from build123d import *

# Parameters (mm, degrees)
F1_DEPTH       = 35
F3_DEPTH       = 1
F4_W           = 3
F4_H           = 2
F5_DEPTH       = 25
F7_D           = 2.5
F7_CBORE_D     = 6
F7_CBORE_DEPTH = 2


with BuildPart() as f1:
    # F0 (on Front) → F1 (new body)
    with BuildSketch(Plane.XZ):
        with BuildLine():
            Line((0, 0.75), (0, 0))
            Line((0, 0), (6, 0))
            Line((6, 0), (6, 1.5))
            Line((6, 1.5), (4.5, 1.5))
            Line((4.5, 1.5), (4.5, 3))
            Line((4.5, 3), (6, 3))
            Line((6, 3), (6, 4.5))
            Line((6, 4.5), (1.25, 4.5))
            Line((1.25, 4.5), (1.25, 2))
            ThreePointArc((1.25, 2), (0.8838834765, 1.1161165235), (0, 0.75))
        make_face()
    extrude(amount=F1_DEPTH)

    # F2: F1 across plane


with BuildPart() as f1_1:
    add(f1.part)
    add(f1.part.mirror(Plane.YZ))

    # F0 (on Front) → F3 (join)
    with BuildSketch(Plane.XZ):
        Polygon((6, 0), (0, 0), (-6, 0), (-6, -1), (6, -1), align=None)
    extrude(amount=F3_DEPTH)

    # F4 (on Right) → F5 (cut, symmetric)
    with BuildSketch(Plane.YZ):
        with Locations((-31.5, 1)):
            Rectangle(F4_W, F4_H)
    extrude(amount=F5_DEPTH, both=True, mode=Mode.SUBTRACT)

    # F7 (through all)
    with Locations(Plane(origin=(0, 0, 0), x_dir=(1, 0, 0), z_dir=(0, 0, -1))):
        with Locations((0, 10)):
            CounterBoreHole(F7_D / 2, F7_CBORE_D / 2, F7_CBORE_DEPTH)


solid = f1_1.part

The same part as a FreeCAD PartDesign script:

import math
import FreeCAD as App
import Part
import Sketcher
from FreeCAD import Vector

doc = App.newDocument("Part")
params = doc.addObject("Spreadsheet::Sheet", "Params")
for row, (alias, value) in enumerate([
    ("sketch1_width", "6 mm"),
    ("sketch1_radius", "1.25 mm"),
    ("sketch1_width2", "1.5 mm"),
    ("sketch1_height", "2.5 mm"),
    ("pad1_length", "35 mm"),
    ("sketch2_width", "12 mm"),
    ("sketch2_height", "1 mm"),
    ("pad2_length", "1 mm"),
    ("sketch3_width", "3 mm"),
    ("sketch3_height", "2 mm"),
    ("pocket1_length", "50 mm"),
    ("sketch4_diameter", "2.5 mm"),
    ("hole_diameter", "2.5 mm"),
    ("hole_cbore_diameter", "6 mm"),
    ("hole_cbore_depth", "2 mm"),
], start=1):
    params.set(f"A{row}", alias)
    params.set(f"B{row}", "=" + value)
    params.setAlias(f"B{row}", alias)

body = doc.addObject("PartDesign::Body", "Body")

sketch1 = body.newObject("Sketcher::SketchObject", "Sketch")
sketch1.AttachmentSupport = (doc.getObject("XZ_Plane"), [""])
sketch1.MapMode = "FlatFace"
sketch1.addGeometry(Part.LineSegment(Vector(0, 0.75, 0), Vector(0, 0, 0)), False)
sketch1.addGeometry(Part.LineSegment(Vector(0, 0, 0), Vector(6, 0, 0)), False)
sketch1.addGeometry(Part.LineSegment(Vector(6, 0, 0), Vector(6, 1.5, 0)), False)
sketch1.addGeometry(Part.LineSegment(Vector(6, 1.5, 0), Vector(4.5, 1.5, 0)), False)
sketch1.addGeometry(Part.LineSegment(Vector(4.5, 1.5, 0), Vector(4.5, 3, 0)), False)
sketch1.addGeometry(Part.LineSegment(Vector(4.5, 3, 0), Vector(6, 3, 0)), False)
sketch1.addGeometry(Part.LineSegment(Vector(6, 3, 0), Vector(6, 4.5, 0)), False)
sketch1.addGeometry(Part.LineSegment(Vector(6, 4.5, 0), Vector(1.25, 4.5, 0)), False)
sketch1.addGeometry(Part.LineSegment(Vector(1.25, 4.5, 0), Vector(1.25, 2, 0)), False)
sketch1.addGeometry(Part.ArcOfCircle(Part.Circle(Vector(0, 2, 0), Vector(0, 0, 1), 1.25), math.radians(-90), math.radians(0)), False)
sketch1.addConstraint(Sketcher.Constraint("Coincident", 0, 2, 1, 1))
sketch1.addConstraint(Sketcher.Constraint("Coincident", 1, 2, 2, 1))
sketch1.addConstraint(Sketcher.Constraint("Coincident", 2, 2, 3, 1))
sketch1.addConstraint(Sketcher.Constraint("Coincident", 3, 2, 4, 1))
sketch1.addConstraint(Sketcher.Constraint("Coincident", 4, 2, 5, 1))
sketch1.addConstraint(Sketcher.Constraint("Coincident", 5, 2, 6, 1))
sketch1.addConstraint(Sketcher.Constraint("Coincident", 6, 2, 7, 1))
sketch1.addConstraint(Sketcher.Constraint("Coincident", 7, 2, 8, 1))
sketch1.addConstraint(Sketcher.Constraint("Tangent", 8, 2, 9, 2))
sketch1.addConstraint(Sketcher.Constraint("Coincident", 9, 1, 0, 1))
sketch1.addConstraint(Sketcher.Constraint("Vertical", 0))
sketch1.addConstraint(Sketcher.Constraint("Horizontal", 1))
sketch1.addConstraint(Sketcher.Constraint("Vertical", 2))
sketch1.addConstraint(Sketcher.Constraint("Horizontal", 3))
sketch1.addConstraint(Sketcher.Constraint("Vertical", 4))
sketch1.addConstraint(Sketcher.Constraint("Horizontal", 5))
sketch1.addConstraint(Sketcher.Constraint("Vertical", 6))
sketch1.addConstraint(Sketcher.Constraint("Horizontal", 7))
sketch1.addConstraint(Sketcher.Constraint("Vertical", 8))
sketch1.addConstraint(Sketcher.Constraint("Coincident", 0, 2, -1, 1))
sketch1.addConstraint(Sketcher.Constraint("PointOnObject", 9, 3, -2))
sketch1.addConstraint(Sketcher.Constraint("Vertical", 2, 2, 5, 2))
sketch1.addConstraint(Sketcher.Constraint("Equal", 5, 2))
sketch1.addConstraint(Sketcher.Constraint("Equal", 2, 4))
sketch1.addConstraint(Sketcher.Constraint("Equal", 4, 6))
sketch1.addConstraint(Sketcher.Constraint("DistanceX", 1, 1, 1, 2, 6.0))
sketch1.addConstraint(Sketcher.Constraint("Radius", 9, 1.25))
sketch1.addConstraint(Sketcher.Constraint("DistanceX", 3, 2, 3, 1, 1.5))
sketch1.addConstraint(Sketcher.Constraint("DistanceY", 8, 2, 8, 1, 2.5))
sketch1.setExpression("Constraints[25]", "Params.sketch1_width")
sketch1.setExpression("Constraints[26]", "Params.sketch1_radius")
sketch1.setExpression("Constraints[27]", "Params.sketch1_width2")
sketch1.setExpression("Constraints[28]", "Params.sketch1_height")
pad1 = body.newObject("PartDesign::Pad", "Pad")
pad1.Profile = sketch1
pad1.setExpression("Length", "Params.pad1_length")
body2 = doc.addObject("PartDesign::Body", "Body001")
doc.recompute()

body2.BaseFeature = body
doc.recompute()

mirroring = doc.addObject("Part::Mirroring", "Mirroring")
mirroring.Source = body
mirroring.Base = Vector(0, 0, 0)
mirroring.Normal = Vector(1, 0, 0)
body3 = doc.addObject("PartDesign::Body", "Body002")
body3.BaseFeature = mirroring
boolean = body2.newObject("PartDesign::Boolean", "Boolean")
boolean.Type = "Fuse"
boolean.addObjects([body3])
doc.recompute()

sketch2 = body2.newObject("Sketcher::SketchObject", "Sketch001")
sketch2.AttachmentSupport = (doc.getObject("XZ_Plane001"), [""])
sketch2.MapMode = "FlatFace"
sketch2.addGeometry(Part.LineSegment(Vector(6, 0, 0), Vector(-6, 0, 0)), False)
sketch2.addGeometry(Part.LineSegment(Vector(-6, 0, 0), Vector(-6, -1, 0)), False)
sketch2.addGeometry(Part.LineSegment(Vector(-6, -1, 0), Vector(6, -1, 0)), False)
sketch2.addGeometry(Part.LineSegment(Vector(6, -1, 0), Vector(6, 0, 0)), False)
sketch2.addConstraint(Sketcher.Constraint("Coincident", 0, 2, 1, 1))
sketch2.addConstraint(Sketcher.Constraint("Coincident", 1, 2, 2, 1))
sketch2.addConstraint(Sketcher.Constraint("Coincident", 2, 2, 3, 1))
sketch2.addConstraint(Sketcher.Constraint("Coincident", 3, 2, 0, 1))
sketch2.addConstraint(Sketcher.Constraint("Horizontal", 0))
sketch2.addConstraint(Sketcher.Constraint("Vertical", 1))
sketch2.addConstraint(Sketcher.Constraint("Horizontal", 2))
sketch2.addConstraint(Sketcher.Constraint("Vertical", 3))
sketch2.addConstraint(Sketcher.Constraint("Symmetric", 0, 2, 3, 2, -1, 1))
sketch2.addConstraint(Sketcher.Constraint("DistanceX", 0, 2, 0, 1, 12.0))
sketch2.addConstraint(Sketcher.Constraint("DistanceY", 1, 2, 1, 1, 1.0))
sketch2.setExpression("Constraints[9]", "Params.sketch2_width")
sketch2.setExpression("Constraints[10]", "Params.sketch2_height")
pad2 = body2.newObject("PartDesign::Pad", "Pad001")
pad2.Profile = sketch2
pad2.setExpression("Length", "Params.pad2_length")

sketch3 = body2.newObject("Sketcher::SketchObject", "Sketch002")
sketch3.AttachmentSupport = (doc.getObject("YZ_Plane001"), [""])
sketch3.MapMode = "FlatFace"
sketch3.addGeometry(Part.LineSegment(Vector(-33, 2, 0), Vector(-33, 0, 0)), False)
sketch3.addGeometry(Part.LineSegment(Vector(-33, 0, 0), Vector(-30, 0, 0)), False)
sketch3.addGeometry(Part.LineSegment(Vector(-30, 0, 0), Vector(-30, 2, 0)), False)
sketch3.addGeometry(Part.LineSegment(Vector(-30, 2, 0), Vector(-33, 2, 0)), False)
sketch3.addConstraint(Sketcher.Constraint("Coincident", 0, 2, 1, 1))
sketch3.addConstraint(Sketcher.Constraint("Coincident", 1, 2, 2, 1))
sketch3.addConstraint(Sketcher.Constraint("Coincident", 2, 2, 3, 1))
sketch3.addConstraint(Sketcher.Constraint("Coincident", 3, 2, 0, 1))
sketch3.addConstraint(Sketcher.Constraint("Vertical", 0))
sketch3.addConstraint(Sketcher.Constraint("Horizontal", 1))
sketch3.addConstraint(Sketcher.Constraint("Vertical", 2))
sketch3.addConstraint(Sketcher.Constraint("Horizontal", 3))
sketch3.addConstraint(Sketcher.Constraint("PointOnObject", 0, 2, -1))
sketch3.addConstraint(Sketcher.Constraint("DistanceX", 1, 1, 1, 2, 3.0))
sketch3.addConstraint(Sketcher.Constraint("DistanceY", 0, 2, 0, 1, 2.0))
sketch3.addConstraint(Sketcher.Constraint("DistanceX", 0, 2, -1, 1, 33.0))
sketch3.setExpression("Constraints[9]", "Params.sketch3_width")
sketch3.setExpression("Constraints[10]", "Params.sketch3_height")
pocket1 = body2.newObject("PartDesign::Pocket", "Pocket")
pocket1.Profile = sketch3
pocket1.setExpression("Length", "Params.pocket1_length")
pocket1.Midplane = True

sketch4 = body2.newObject("Sketcher::SketchObject", "Sketch003")
sketch4.AttachmentSupport = (doc.getObject("XY_Plane001"), [""])
sketch4.MapMode = "FlatFace"
sketch4.addGeometry(Part.Circle(Vector(0, -10, 0), Vector(0, 0, 1), 1.25), False)
sketch4.addConstraint(Sketcher.Constraint("PointOnObject", 0, 3, -2))
sketch4.addConstraint(Sketcher.Constraint("Diameter", 0, 2.5))
sketch4.addConstraint(Sketcher.Constraint("DistanceY", 0, 3, -1, 1, 10.0))
sketch4.setExpression("Constraints[1]", "Params.sketch4_diameter")
doc.recompute()
hole = body2.newObject("PartDesign::Hole", "Hole")
hole.Profile = sketch4
hole.ThreadType = "None"
hole.setExpression("Diameter", "Params.hole_diameter")
hole.DepthType = "ThroughAll"
hole.HoleCutType = "Counterbore"
hole.setExpression("HoleCutDiameter", "Params.hole_cbore_diameter")
hole.setExpression("HoleCutDepth", "Params.hole_cbore_depth")
hole.Reversed = True
mirroring.Visibility = False

doc.recompute()
